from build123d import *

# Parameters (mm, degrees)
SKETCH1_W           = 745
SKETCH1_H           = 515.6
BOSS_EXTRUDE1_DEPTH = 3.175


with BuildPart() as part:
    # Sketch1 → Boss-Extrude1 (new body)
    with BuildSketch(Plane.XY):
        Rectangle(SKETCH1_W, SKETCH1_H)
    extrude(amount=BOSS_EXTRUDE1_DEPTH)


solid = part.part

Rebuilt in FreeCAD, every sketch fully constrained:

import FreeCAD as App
import Part
import Sketcher

V = App.Vector
Q = App.Units.Quantity

doc = App.newDocument("Part")
body = doc.addObject("PartDesign::Body", "Body")

# Sketch on XY plane
sketch1 = body.newObject("Sketcher::SketchObject", "Sketch")
sketch1.AttachmentSupport = (doc.getObject("XY_Plane"), [""])
sketch1.MapMode = "FlatFace"
sketch1.addGeometry(Part.LineSegment(V(-372, 258, 0), V(-372, -258, 0)), False)
sketch1.addGeometry(Part.LineSegment(V(-372, -258, 0), V(372, -258, 0)), False)
sketch1.addGeometry(Part.LineSegment(V(372, -258, 0), V(372, 258, 0)), False)
sketch1.addGeometry(Part.LineSegment(V(372, 258, 0), V(-372, 258, 0)), False)
sketch1.addConstraint(Sketcher.Constraint("Coincident", 0, 2, 1, 1))
sketch1.addConstraint(Sketcher.Constraint("Coincident", 1, 2, 2, 1))
sketch1.addConstraint(Sketcher.Constraint("Coincident", 2, 2, 3, 1))
sketch1.addConstraint(Sketcher.Constraint("Coincident", 3, 2, 0, 1))
sketch1.addConstraint(Sketcher.Constraint("Vertical", 0))
sketch1.addConstraint(Sketcher.Constraint("Horizontal", 1))
sketch1.addConstraint(Sketcher.Constraint("Vertical", 2))
sketch1.addConstraint(Sketcher.Constraint("Horizontal", 3))
sketch1.addConstraint(Sketcher.Constraint("Symmetric", 0, 2, 2, 2, -1, 1))
sketch1.addConstraint(Sketcher.Constraint("DistanceX", 1, 1, 1, 2, Q("745 mm")))
sketch1.addConstraint(Sketcher.Constraint("DistanceY", 0, 2, 0, 1, Q("515.6 mm")))
pad1 = body.newObject("PartDesign::Pad", "Pad")
pad1.Profile = sketch1
pad1.Length = 3.175

doc.recompute()
